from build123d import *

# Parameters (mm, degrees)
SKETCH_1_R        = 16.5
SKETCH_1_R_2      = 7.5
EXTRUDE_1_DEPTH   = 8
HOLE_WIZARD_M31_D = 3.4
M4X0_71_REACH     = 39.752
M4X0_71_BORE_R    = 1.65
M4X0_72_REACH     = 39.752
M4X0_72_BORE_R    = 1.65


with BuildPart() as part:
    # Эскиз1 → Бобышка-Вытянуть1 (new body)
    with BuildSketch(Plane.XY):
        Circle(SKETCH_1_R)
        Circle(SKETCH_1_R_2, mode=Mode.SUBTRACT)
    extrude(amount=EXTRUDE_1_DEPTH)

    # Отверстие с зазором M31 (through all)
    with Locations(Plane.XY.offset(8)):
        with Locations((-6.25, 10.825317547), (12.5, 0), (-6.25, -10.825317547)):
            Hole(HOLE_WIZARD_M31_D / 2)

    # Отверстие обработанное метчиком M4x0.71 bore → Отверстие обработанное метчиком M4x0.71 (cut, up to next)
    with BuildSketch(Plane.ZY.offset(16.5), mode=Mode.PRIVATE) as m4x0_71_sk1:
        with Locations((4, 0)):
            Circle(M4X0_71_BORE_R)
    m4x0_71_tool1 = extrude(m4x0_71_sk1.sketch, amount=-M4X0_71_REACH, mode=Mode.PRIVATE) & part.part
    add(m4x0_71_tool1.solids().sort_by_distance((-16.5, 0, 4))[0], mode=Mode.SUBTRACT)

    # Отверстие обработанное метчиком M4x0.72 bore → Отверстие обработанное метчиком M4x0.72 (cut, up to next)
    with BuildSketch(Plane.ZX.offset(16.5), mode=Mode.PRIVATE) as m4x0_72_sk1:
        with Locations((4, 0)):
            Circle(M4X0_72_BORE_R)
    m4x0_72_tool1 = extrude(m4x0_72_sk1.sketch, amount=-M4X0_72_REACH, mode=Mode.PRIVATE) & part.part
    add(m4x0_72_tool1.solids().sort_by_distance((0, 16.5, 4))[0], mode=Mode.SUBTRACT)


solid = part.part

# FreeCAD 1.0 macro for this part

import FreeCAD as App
import Part
import Sketcher
Q = App.Units.Quantity

doc = App.newDocument("Part")
body = doc.addObject("PartDesign::Body", "Body")

sketch1 = body.newObject("Sketcher::SketchObject", "Sketch")
sketch1.AttachmentSupport = (doc.getObject("XY_Plane"), [""])
sketch1.MapMode = "FlatFace"
sketch1.addGeometry(Part.Circle(App.Vector(0, 0, 0), App.Vector(0, 0, 1), 16.5), False)
sketch1.addGeometry(Part.Circle(App.Vector(0, 0, 0), App.Vector(0, 0, 1), 7.5), False)
sketch1.addConstraint(Sketcher.Constraint("Coincident", 0, 3, -1, 1))
sketch1.addConstraint(Sketcher.Constraint("Coincident", 1, 3, -1, 1))
sketch1.addConstraint(Sketcher.Constraint("Diameter", 0, Q("33 mm")))
sketch1.addConstraint(Sketcher.Constraint("Diameter", 1, Q("15 mm")))
pad1 = body.newObject("PartDesign::Pad", "Pad")
pad1.Profile = sketch1
pad1.Length = 8

sketch2 = body.newObject("Sketcher::SketchObject", "Sketch001")
sketch2.AttachmentSupport = (doc.getObject("XY_Plane"), [""])
sketch2.MapMode = "FlatFace"
sketch2.AttachmentOffset = App.Placement(App.Vector(0, 0, 8), App.Rotation())
sketch2.addGeometry(Part.Circle(App.Vector(-6.25, 10.825318, 0), App.Vector(0, 0, 1), 1.7), False)
sketch2.addGeometry(Part.Circle(App.Vector(12.5, 0, 0), App.Vector(0, 0, 1), 1.7), False)
sketch2.addGeometry(Part.Circle(App.Vector(-6.25, -10.825318, 0), App.Vector(0, 0, 1), 1.7), False)
sketch2.addConstraint(Sketcher.Constraint("Equal", 0, 1))
sketch2.addConstraint(Sketcher.Constraint("Equal", 1, 2))
sketch2.addConstraint(Sketcher.Constraint("Symmetric", 0, 3, 2, 3, -1))
sketch2.addConstraint(Sketcher.Constraint("PointOnObject", 1, 3, -1))
sketch2.addConstraint(Sketcher.Constraint("Diameter", 0, Q("3.4 mm")))
sketch2.addConstraint(Sketcher.Constraint("DistanceX", -1, 1, 1, 3, Q("12.5 mm")))
sketch2.addConstraint(Sketcher.Constraint("DistanceX", 0, 3, -1, 1, Q("6.25 mm")))
sketch2.addConstraint(Sketcher.Constraint("DistanceY", -1, 1, 0, 3, Q("10.825318 mm")))
doc.recompute()
hole = body.newObject("PartDesign::Hole", "Hole")
hole.Profile = sketch2
hole.ThreadType = "None"
hole.Diameter = 3.4
hole.DepthType = "ThroughAll"

sketch3 = body.newObject("Sketcher::SketchObject", "Sketch002")
sketch3.AttachmentSupport = (doc.getObject("YZ_Plane"), [""])
sketch3.MapMode = "FlatFace"
sketch3.AttachmentOffset = App.Placement(App.Vector(0, 0, -16.5), App.Rotation())
sketch3.addGeometry(Part.Circle(App.Vector(0, 4, 0), App.Vector(0, 0, 1), 1.65), False)
sketch3.addConstraint(Sketcher.Constraint("PointOnObject", 0, 3, -2))
sketch3.addConstraint(Sketcher.Constraint("Diameter", 0, Q("3.3 mm")))
sketch3.addConstraint(Sketcher.Constraint("DistanceY", -1, 1, 0, 3, Q("4 mm")))
pocket1 = body.newObject("PartDesign::Pocket", "Pocket")
pocket1.Profile = sketch3
pocket1.Type = "UpToFirst"
pocket1.Reversed = True

sketch4 = body.newObject("Sketcher::SketchObject", "Sketch003")
sketch4.AttachmentSupport = (doc.getObject("XZ_Plane"), [""])
sketch4.MapMode = "FlatFace"
sketch4.AttachmentOffset = App.Placement(App.Vector(0, 0, -16.5), App.Rotation())
sketch4.addGeometry(Part.Circle(App.Vector(0, 4, 0), App.Vector(0, 0, 1), 1.65), False)
sketch4.addConstraint(Sketcher.Constraint("PointOnObject", 0, 3, -2))
sketch4.addConstraint(Sketcher.Constraint("Diameter", 0, Q("3.3 mm")))
sketch4.addConstraint(Sketcher.Constraint("DistanceY", -1, 1, 0, 3, Q("4 mm")))
pocket2 = body.newObject("PartDesign::Pocket", "Pocket001")
pocket2.Profile = sketch4
pocket2.Type = "UpToFirst"
pocket2.Reversed = True

doc.recompute()
